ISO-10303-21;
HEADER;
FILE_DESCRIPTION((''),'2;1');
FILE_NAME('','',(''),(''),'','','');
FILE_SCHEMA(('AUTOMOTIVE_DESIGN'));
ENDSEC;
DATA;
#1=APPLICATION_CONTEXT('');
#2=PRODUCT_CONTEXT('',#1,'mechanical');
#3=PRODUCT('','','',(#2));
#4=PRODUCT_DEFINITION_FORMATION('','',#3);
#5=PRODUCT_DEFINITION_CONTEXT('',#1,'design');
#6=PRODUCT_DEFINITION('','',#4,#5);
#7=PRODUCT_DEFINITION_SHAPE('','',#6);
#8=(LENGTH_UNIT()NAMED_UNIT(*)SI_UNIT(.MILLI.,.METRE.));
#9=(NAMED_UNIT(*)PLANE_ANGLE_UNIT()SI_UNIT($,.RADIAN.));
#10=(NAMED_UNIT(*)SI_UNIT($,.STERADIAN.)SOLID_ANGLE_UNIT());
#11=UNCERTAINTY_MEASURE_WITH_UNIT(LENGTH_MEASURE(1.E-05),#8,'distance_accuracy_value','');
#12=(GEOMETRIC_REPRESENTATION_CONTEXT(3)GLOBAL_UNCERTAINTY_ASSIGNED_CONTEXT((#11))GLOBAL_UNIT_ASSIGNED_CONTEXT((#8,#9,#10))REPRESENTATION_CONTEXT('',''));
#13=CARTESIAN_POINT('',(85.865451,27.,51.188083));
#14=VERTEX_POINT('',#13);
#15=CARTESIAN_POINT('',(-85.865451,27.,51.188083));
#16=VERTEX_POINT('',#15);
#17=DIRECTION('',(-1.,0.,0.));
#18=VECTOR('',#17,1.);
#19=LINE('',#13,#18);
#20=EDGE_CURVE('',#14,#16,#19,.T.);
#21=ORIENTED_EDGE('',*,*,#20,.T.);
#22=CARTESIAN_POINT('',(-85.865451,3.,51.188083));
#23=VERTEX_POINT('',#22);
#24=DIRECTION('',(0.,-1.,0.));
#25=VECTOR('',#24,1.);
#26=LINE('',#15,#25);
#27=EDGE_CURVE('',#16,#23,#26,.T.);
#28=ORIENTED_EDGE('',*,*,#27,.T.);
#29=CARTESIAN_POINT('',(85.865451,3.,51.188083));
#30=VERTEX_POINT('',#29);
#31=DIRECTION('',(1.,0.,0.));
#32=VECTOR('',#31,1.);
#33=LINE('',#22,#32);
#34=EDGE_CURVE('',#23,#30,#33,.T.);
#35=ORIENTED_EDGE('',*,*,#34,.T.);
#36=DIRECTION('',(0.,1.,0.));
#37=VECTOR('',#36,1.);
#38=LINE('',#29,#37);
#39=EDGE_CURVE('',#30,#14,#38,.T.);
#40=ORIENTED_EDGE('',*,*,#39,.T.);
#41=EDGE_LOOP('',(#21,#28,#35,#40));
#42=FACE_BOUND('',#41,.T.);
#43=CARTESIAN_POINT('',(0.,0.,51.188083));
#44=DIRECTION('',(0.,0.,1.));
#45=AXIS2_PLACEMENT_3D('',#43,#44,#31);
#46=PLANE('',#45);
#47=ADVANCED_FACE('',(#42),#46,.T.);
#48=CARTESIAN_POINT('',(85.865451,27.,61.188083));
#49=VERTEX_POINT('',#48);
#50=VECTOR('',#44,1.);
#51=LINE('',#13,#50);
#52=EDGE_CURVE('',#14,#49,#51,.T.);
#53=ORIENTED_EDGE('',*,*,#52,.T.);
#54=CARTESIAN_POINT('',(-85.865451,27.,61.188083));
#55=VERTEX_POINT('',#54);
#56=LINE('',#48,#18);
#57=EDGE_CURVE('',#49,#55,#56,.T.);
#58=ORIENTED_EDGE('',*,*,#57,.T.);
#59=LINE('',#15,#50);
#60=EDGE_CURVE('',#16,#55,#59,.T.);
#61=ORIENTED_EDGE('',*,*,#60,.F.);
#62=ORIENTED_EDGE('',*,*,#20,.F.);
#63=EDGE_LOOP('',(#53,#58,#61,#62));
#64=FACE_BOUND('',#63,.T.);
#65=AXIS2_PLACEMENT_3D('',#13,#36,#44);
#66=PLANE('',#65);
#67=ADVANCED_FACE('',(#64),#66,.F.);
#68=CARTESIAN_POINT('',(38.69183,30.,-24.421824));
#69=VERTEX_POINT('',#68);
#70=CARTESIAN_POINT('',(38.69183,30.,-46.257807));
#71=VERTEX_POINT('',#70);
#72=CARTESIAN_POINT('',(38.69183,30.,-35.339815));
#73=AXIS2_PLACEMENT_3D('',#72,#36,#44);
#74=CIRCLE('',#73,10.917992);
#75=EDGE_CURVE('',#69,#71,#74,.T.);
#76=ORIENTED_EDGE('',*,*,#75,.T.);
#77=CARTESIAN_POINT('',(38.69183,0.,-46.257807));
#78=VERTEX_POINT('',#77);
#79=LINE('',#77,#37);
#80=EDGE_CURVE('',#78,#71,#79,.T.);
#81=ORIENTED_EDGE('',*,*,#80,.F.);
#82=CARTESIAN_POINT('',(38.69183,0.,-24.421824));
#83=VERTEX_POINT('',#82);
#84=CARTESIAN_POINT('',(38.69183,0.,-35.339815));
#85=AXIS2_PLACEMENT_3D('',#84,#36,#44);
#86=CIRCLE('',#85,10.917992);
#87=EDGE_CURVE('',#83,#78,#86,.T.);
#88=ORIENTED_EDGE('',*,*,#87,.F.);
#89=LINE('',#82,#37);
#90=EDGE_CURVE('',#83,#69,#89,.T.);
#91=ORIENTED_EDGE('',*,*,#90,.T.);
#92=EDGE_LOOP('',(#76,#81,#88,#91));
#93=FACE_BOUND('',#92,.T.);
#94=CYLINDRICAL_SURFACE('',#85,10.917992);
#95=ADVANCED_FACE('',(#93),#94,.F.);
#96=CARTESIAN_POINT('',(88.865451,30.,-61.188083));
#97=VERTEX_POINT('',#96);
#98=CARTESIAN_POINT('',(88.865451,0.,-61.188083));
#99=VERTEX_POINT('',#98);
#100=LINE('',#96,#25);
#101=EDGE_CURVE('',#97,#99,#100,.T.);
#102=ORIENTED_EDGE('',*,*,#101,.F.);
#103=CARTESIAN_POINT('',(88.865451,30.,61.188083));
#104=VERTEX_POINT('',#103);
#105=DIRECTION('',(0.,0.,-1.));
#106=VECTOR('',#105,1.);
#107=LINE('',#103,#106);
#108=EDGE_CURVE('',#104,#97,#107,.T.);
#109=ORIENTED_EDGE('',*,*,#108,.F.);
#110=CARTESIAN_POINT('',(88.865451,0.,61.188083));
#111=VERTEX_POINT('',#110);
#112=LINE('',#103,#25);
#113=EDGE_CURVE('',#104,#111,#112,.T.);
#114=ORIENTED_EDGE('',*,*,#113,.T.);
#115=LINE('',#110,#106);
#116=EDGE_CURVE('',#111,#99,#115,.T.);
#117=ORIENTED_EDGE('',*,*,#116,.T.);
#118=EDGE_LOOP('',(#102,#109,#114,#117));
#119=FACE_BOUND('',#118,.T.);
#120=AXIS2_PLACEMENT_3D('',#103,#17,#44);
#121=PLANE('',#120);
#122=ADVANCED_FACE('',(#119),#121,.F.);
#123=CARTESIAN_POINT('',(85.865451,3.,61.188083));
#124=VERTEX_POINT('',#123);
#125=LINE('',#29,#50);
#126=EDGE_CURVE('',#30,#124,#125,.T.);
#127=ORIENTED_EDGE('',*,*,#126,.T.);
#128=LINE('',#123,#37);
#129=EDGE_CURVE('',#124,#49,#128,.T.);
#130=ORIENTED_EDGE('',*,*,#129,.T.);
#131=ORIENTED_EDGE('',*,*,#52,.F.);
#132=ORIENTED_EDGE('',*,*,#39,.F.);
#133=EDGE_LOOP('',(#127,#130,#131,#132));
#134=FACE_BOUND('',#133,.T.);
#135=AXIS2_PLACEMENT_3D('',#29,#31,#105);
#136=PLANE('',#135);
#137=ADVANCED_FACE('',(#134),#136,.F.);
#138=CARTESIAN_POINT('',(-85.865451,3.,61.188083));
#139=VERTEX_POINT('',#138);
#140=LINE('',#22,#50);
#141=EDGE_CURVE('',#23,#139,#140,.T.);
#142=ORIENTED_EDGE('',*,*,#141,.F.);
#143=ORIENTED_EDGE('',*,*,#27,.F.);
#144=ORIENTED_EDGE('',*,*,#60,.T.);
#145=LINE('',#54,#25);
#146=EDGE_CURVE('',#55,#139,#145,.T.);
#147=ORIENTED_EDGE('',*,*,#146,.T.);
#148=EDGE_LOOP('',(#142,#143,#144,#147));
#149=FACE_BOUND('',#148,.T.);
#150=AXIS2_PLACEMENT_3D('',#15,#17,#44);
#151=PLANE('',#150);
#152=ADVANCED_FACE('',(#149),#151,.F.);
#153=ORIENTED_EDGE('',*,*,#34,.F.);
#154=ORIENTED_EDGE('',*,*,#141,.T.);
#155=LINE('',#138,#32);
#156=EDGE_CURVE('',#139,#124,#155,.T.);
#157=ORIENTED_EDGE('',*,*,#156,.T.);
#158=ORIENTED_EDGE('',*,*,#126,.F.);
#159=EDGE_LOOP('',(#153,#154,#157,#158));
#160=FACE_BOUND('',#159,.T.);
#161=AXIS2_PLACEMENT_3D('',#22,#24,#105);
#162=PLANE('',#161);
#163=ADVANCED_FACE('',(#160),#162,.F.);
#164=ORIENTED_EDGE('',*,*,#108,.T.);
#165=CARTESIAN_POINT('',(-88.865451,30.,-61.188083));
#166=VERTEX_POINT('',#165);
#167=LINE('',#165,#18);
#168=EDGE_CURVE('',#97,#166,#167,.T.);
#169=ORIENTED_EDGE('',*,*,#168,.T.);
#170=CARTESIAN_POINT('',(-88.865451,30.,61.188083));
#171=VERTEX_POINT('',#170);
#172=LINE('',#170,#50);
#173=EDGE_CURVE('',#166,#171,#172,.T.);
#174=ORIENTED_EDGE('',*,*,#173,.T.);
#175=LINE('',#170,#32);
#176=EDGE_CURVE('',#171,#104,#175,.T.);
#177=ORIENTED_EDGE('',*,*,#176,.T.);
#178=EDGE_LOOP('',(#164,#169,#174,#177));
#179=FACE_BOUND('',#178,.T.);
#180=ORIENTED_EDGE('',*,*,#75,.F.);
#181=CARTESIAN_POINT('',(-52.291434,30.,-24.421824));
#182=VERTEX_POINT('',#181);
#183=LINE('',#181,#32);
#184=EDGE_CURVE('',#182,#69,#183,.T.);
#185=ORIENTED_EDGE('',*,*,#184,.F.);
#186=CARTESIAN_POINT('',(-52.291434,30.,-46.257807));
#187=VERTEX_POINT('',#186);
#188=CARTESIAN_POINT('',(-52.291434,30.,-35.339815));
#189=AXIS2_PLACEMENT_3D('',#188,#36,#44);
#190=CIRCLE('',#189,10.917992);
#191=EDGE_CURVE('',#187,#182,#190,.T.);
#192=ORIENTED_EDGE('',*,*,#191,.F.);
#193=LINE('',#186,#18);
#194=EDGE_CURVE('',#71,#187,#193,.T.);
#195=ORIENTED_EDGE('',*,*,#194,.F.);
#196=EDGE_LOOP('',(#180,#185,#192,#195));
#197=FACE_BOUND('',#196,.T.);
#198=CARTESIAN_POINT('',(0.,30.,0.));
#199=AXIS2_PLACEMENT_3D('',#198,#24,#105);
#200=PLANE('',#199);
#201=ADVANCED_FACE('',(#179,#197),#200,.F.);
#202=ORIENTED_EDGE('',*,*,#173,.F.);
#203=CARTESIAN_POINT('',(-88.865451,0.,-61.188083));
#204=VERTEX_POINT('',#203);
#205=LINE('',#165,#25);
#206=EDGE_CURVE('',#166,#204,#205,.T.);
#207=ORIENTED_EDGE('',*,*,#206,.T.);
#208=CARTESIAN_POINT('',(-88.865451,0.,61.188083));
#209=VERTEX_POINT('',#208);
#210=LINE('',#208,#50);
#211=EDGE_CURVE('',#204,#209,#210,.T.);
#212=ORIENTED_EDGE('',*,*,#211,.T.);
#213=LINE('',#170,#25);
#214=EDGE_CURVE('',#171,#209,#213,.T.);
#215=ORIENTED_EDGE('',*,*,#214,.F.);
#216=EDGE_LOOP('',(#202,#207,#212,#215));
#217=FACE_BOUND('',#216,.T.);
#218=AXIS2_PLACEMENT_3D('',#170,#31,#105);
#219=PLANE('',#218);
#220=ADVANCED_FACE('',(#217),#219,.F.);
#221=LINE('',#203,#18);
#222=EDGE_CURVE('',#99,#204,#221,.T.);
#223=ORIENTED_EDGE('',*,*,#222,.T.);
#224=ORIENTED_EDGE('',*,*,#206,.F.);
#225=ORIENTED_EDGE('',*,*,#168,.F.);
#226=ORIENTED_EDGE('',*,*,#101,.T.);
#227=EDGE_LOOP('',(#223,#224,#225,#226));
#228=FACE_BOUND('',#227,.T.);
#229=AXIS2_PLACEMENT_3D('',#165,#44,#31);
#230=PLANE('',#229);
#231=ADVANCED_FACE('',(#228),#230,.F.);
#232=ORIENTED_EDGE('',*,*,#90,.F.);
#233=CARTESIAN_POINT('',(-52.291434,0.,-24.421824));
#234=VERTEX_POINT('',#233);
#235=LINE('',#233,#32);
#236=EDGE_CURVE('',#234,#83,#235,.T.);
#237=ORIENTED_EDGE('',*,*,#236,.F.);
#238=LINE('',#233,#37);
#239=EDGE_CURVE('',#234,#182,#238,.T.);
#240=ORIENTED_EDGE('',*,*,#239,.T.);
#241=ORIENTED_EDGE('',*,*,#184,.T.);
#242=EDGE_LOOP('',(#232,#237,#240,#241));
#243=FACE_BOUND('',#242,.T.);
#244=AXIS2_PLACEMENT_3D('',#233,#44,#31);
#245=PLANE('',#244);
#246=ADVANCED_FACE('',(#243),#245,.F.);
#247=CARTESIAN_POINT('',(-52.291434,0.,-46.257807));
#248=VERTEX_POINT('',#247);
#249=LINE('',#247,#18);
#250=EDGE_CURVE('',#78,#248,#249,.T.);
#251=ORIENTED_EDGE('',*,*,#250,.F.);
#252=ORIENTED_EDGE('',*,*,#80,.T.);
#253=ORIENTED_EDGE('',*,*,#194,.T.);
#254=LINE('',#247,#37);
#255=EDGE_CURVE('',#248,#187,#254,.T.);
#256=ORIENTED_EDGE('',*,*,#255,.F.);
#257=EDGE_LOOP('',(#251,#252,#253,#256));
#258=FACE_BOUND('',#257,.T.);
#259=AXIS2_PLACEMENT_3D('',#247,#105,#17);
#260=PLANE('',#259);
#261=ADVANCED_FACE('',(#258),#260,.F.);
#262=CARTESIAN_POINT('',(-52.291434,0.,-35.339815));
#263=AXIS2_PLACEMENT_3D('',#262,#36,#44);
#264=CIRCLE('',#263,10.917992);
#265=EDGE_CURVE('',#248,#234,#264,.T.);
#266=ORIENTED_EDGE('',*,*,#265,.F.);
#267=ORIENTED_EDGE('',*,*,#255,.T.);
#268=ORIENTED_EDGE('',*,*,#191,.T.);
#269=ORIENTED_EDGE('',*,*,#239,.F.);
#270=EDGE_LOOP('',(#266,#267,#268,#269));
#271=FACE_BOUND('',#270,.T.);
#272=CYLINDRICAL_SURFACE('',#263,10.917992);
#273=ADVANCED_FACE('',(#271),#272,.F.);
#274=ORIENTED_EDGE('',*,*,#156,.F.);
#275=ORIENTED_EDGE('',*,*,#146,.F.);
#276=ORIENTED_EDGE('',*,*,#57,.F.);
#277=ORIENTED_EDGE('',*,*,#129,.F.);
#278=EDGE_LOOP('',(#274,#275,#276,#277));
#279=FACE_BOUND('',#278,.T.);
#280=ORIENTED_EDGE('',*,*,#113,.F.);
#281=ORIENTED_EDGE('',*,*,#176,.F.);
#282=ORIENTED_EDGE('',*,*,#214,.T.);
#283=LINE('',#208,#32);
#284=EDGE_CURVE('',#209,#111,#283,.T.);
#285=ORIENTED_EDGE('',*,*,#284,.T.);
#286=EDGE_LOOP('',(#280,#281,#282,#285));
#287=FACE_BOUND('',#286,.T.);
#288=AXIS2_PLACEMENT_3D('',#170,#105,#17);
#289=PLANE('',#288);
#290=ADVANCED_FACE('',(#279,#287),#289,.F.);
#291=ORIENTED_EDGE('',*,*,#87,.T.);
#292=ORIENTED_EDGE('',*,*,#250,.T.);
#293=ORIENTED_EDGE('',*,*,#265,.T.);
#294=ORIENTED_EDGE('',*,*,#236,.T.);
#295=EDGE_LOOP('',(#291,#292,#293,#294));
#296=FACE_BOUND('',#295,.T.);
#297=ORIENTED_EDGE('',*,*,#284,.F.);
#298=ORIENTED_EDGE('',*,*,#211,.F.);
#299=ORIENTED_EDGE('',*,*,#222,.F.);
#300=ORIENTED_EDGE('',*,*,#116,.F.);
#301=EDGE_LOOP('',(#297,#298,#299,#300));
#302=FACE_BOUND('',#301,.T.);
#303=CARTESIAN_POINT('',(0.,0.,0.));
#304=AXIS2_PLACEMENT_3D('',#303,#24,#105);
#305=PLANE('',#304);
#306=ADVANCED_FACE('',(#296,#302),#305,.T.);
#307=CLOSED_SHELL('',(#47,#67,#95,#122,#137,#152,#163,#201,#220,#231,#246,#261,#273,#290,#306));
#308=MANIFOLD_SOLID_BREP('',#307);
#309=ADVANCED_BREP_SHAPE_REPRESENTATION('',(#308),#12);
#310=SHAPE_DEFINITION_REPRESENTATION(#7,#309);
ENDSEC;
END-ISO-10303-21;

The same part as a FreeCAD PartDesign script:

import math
import FreeCAD as App
import Part
import Sketcher


def add_polygon(sketch, points):
    """Adds a closed chain of lines whose ends are joined by coincident constraints."""
    first, n = sketch.GeometryCount, len(points)
    for a, b in zip(points, points[1:] + points[:1]):
        sketch.addGeometry(Part.LineSegment(App.Vector(*a, 0), App.Vector(*b, 0)), False)
    for i in range(n):
        sketch.addConstraint(Sketcher.Constraint("Coincident", first + i, 2, first + (i + 1) % n, 1))

doc = App.newDocument("Part")
params = doc.addObject("Spreadsheet::Sheet", "Params")
for row, (alias, value) in enumerate([
    ("pad1_length", "30 mm"),
    ("sketch2_height", "24 mm"),
    ("pocket1_length", "10 mm"),
], start=1):
    params.set(f"A{row}", alias)
    params.set(f"B{row}", "=" + value)
    params.setAlias(f"B{row}", alias)

body = doc.addObject("PartDesign::Body", "Body")

# Sketch on XZ plane
sketch1 = body.newObject("Sketcher::SketchObject", "Sketch")
sketch1.AttachmentSupport = (doc.getObject("XZ_Plane"), [""])
sketch1.MapMode = "FlatFace"
add_polygon(sketch1, [(-89, -61), (-89, 61), (89, 61), (89, -61)])  # lines 0-3
sketch1.addConstraint([
    Sketcher.Constraint("Vertical", 0),
    Sketcher.Constraint("Horizontal", 1),
    Sketcher.Constraint("Vertical", 2),
    Sketcher.Constraint("Horizontal", 3),
    Sketcher.Constraint("Symmetric", 0, 2, 2, 2, -1, 1),
    Sketcher.Constraint("DistanceX", 1, 1, 1, 2, 177.730902),
    Sketcher.Constraint("DistanceY", 0, 1, 0, 2, 122.376166),
])
pad1 = body.newObject("PartDesign::Pad", "Pad")
pad1.Profile = sketch1
pad1.setExpression("Length", "Params.pad1_length")
pad1.Reversed = True

# Sketch on XY plane
sketch2 = body.newObject("Sketcher::SketchObject", "Sketch001")
sketch2.AttachmentSupport = (doc.getObject("XY_Plane"), [""])
sketch2.MapMode = "FlatFace"
sketch2.AttachmentOffset = App.Placement(App.Vector(0, 0, 61.188083), App.Rotation())
add_polygon(sketch2, [(-86, 27), (-86, 3), (86, 3), (86, 27)])  # lines 0-3
sketch2.addConstraint([
    Sketcher.Constraint("Vertical", 0),
    Sketcher.Constraint("Horizontal", 1),
    Sketcher.Constraint("Vertical", 2),
    Sketcher.Constraint("Horizontal", 3),
    Sketcher.Constraint("DistanceY", 0, 2, 0, 1, 24.0),
    Sketcher.Constraint("DistanceY", -1, 1, 0, 2, 3.0),
    Sketcher.Constraint("DistanceX", 1, 1, 1, 2, 171.730902),
    Sketcher.Constraint("DistanceX", 0, 2, -1, 1, 85.865451),
])
sketch2.setExpression("Constraints[8]", "Params.sketch2_height")
pocket1 = body.newObject("PartDesign::Pocket", "Pocket")
pocket1.Profile = sketch2
pocket1.setExpression("Length", "Params.pocket1_length")

# Sketch on XZ plane
sketch3 = body.newObject("Sketcher::SketchObject", "Sketch002")
sketch3.AttachmentSupport = (doc.getObject("XZ_Plane"), [""])
sketch3.MapMode = "FlatFace"
sketch3.AttachmentOffset = App.Placement(App.Vector(0, 0, -30), App.Rotation())
sketch3.addGeometry([
    Part.LineSegment(App.Vector(39, -46, 0), App.Vector(-52, -46, 0)),
    Part.ArcOfCircle(Part.Circle(App.Vector(-52, -35, 0), App.Vector(0, 0, 1), 11), math.radians(90), math.radians(270)),
    Part.LineSegment(App.Vector(-52, -24, 0), App.Vector(39, -24, 0)),
    Part.ArcOfCircle(Part.Circle(App.Vector(39, -35, 0), App.Vector(0, 0, 1), 11), math.radians(-90), math.radians(90)),
], False)
sketch3.addConstraint([
    Sketcher.Constraint("Tangent", 0, 2, 1, 2),
    Sketcher.Constraint("Tangent", 1, 1, 2, 1),
    Sketcher.Constraint("Tangent", 2, 2, 3, 2),
    Sketcher.Constraint("Tangent", 3, 1, 0, 1),
    Sketcher.Constraint("Horizontal", 0),
    Sketcher.Constraint("Horizontal", 2),
    Sketcher.Constraint("Radius", 1, 10.917992),
    Sketcher.Constraint("DistanceX", 0, 2, 0, 1, 90.983264),
    Sketcher.Constraint("DistanceX", -1, 1, 3, 3, 38.69183),
    Sketcher.Constraint("DistanceY", 1, 3, -1, 1, 35.339815),
])
pocket2 = body.newObject("PartDesign::Pocket", "Pocket001")
pocket2.Profile = sketch3
pocket2.Type = "ThroughAll"
pocket2.Reversed = True

doc.recompute()
